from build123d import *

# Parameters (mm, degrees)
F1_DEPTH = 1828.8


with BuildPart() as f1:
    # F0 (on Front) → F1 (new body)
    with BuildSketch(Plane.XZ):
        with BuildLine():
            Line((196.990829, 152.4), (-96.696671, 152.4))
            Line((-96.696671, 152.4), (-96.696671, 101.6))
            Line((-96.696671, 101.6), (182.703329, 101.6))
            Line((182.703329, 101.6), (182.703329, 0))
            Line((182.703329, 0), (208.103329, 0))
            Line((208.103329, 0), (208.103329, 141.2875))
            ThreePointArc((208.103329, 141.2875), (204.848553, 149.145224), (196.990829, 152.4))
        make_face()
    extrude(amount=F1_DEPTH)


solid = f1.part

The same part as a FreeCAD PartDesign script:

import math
import FreeCAD as App
import Part
import Sketcher
from FreeCAD import Vector
Q = App.Units.Quantity

doc = App.newDocument("Part")
body = doc.addObject("PartDesign::Body", "Body")

# Sketch on XZ plane
sketch1 = body.newObject("Sketcher::SketchObject", "Sketch")
sketch1.AttachmentSupport = (doc.getObject("XZ_Plane"), [""])
sketch1.MapMode = "FlatFace"
sketch1.addGeometry(Part.LineSegment(Vector(197, 152, 0), Vector(-97, 152, 0)), False)
sketch1.addGeometry(Part.LineSegment(Vector(-97, 152, 0), Vector(-97, 102, 0)), False)
sketch1.addGeometry(Part.LineSegment(Vector(-97, 102, 0), Vector(183, 102, 0)), False)
sketch1.addGeometry(Part.LineSegment(Vector(183, 102, 0), Vector(183, 0, 0)), False)
sketch1.addGeometry(Part.LineSegment(Vector(183, 0, 0), Vector(208, 0, 0)), False)
sketch1.addGeometry(Part.LineSegment(Vector(208, 0, 0), Vector(208, 141, 0)), False)
sketch1.addGeometry(Part.ArcOfCircle(Part.Circle(Vector(197, 141, 0), Vector(0, 0, 1), 11), math.radians(0), math.radians(90)), False)
sketch1.addConstraint(Sketcher.Constraint("Coincident", 0, 2, 1, 1))
sketch1.addConstraint(Sketcher.Constraint("Coincident", 1, 2, 2, 1))
sketch1.addConstraint(Sketcher.Constraint("Coincident", 2, 2, 3, 1))
sketch1.addConstraint(Sketcher.Constraint("Coincident", 3, 2, 4, 1))
sketch1.addConstraint(Sketcher.Constraint("Coincident", 4, 2, 5, 1))
sketch1.addConstraint(Sketcher.Constraint("Tangent", 5, 2, 6, 1))
sketch1.addConstraint(Sketcher.Constraint("Tangent", 6, 2, 0, 1))
sketch1.addConstraint(Sketcher.Constraint("Horizontal", 0))
sketch1.addConstraint(Sketcher.Constraint("Vertical", 1))
sketch1.addConstraint(Sketcher.Constraint("Horizontal", 2))
sketch1.addConstraint(Sketcher.Constraint("Vertical", 3))
sketch1.addConstraint(Sketcher.Constraint("Horizontal", 4))
sketch1.addConstraint(Sketcher.Constraint("Vertical", 5))
sketch1.addConstraint(Sketcher.Constraint("PointOnObject", 3, 2, -1))
sketch1.addConstraint(Sketcher.Constraint("DistanceX", 2, 1, 2, 2, Q("11 in")))
sketch1.addConstraint(Sketcher.Constraint("DistanceX", 4, 1, 4, 2, Q("1 in")))
sketch1.addConstraint(Sketcher.Constraint("DistanceY", 1, 2, 1, 1, Q("2 in")))
sketch1.addConstraint(Sketcher.Constraint("DistanceY", 3, 2, 3, 1, Q("4 in")))
sketch1.addConstraint(Sketcher.Constraint("Radius", 6, Q("0.4375 in")))
sketch1.addConstraint(Sketcher.Constraint("DistanceX", -1, 1, 6, 3, 196.990829))
pad1 = body.newObject("PartDesign::Pad", "Pad")
pad1.Profile = sketch1
pad1.Length = Q("72 in")

doc.recompute()
